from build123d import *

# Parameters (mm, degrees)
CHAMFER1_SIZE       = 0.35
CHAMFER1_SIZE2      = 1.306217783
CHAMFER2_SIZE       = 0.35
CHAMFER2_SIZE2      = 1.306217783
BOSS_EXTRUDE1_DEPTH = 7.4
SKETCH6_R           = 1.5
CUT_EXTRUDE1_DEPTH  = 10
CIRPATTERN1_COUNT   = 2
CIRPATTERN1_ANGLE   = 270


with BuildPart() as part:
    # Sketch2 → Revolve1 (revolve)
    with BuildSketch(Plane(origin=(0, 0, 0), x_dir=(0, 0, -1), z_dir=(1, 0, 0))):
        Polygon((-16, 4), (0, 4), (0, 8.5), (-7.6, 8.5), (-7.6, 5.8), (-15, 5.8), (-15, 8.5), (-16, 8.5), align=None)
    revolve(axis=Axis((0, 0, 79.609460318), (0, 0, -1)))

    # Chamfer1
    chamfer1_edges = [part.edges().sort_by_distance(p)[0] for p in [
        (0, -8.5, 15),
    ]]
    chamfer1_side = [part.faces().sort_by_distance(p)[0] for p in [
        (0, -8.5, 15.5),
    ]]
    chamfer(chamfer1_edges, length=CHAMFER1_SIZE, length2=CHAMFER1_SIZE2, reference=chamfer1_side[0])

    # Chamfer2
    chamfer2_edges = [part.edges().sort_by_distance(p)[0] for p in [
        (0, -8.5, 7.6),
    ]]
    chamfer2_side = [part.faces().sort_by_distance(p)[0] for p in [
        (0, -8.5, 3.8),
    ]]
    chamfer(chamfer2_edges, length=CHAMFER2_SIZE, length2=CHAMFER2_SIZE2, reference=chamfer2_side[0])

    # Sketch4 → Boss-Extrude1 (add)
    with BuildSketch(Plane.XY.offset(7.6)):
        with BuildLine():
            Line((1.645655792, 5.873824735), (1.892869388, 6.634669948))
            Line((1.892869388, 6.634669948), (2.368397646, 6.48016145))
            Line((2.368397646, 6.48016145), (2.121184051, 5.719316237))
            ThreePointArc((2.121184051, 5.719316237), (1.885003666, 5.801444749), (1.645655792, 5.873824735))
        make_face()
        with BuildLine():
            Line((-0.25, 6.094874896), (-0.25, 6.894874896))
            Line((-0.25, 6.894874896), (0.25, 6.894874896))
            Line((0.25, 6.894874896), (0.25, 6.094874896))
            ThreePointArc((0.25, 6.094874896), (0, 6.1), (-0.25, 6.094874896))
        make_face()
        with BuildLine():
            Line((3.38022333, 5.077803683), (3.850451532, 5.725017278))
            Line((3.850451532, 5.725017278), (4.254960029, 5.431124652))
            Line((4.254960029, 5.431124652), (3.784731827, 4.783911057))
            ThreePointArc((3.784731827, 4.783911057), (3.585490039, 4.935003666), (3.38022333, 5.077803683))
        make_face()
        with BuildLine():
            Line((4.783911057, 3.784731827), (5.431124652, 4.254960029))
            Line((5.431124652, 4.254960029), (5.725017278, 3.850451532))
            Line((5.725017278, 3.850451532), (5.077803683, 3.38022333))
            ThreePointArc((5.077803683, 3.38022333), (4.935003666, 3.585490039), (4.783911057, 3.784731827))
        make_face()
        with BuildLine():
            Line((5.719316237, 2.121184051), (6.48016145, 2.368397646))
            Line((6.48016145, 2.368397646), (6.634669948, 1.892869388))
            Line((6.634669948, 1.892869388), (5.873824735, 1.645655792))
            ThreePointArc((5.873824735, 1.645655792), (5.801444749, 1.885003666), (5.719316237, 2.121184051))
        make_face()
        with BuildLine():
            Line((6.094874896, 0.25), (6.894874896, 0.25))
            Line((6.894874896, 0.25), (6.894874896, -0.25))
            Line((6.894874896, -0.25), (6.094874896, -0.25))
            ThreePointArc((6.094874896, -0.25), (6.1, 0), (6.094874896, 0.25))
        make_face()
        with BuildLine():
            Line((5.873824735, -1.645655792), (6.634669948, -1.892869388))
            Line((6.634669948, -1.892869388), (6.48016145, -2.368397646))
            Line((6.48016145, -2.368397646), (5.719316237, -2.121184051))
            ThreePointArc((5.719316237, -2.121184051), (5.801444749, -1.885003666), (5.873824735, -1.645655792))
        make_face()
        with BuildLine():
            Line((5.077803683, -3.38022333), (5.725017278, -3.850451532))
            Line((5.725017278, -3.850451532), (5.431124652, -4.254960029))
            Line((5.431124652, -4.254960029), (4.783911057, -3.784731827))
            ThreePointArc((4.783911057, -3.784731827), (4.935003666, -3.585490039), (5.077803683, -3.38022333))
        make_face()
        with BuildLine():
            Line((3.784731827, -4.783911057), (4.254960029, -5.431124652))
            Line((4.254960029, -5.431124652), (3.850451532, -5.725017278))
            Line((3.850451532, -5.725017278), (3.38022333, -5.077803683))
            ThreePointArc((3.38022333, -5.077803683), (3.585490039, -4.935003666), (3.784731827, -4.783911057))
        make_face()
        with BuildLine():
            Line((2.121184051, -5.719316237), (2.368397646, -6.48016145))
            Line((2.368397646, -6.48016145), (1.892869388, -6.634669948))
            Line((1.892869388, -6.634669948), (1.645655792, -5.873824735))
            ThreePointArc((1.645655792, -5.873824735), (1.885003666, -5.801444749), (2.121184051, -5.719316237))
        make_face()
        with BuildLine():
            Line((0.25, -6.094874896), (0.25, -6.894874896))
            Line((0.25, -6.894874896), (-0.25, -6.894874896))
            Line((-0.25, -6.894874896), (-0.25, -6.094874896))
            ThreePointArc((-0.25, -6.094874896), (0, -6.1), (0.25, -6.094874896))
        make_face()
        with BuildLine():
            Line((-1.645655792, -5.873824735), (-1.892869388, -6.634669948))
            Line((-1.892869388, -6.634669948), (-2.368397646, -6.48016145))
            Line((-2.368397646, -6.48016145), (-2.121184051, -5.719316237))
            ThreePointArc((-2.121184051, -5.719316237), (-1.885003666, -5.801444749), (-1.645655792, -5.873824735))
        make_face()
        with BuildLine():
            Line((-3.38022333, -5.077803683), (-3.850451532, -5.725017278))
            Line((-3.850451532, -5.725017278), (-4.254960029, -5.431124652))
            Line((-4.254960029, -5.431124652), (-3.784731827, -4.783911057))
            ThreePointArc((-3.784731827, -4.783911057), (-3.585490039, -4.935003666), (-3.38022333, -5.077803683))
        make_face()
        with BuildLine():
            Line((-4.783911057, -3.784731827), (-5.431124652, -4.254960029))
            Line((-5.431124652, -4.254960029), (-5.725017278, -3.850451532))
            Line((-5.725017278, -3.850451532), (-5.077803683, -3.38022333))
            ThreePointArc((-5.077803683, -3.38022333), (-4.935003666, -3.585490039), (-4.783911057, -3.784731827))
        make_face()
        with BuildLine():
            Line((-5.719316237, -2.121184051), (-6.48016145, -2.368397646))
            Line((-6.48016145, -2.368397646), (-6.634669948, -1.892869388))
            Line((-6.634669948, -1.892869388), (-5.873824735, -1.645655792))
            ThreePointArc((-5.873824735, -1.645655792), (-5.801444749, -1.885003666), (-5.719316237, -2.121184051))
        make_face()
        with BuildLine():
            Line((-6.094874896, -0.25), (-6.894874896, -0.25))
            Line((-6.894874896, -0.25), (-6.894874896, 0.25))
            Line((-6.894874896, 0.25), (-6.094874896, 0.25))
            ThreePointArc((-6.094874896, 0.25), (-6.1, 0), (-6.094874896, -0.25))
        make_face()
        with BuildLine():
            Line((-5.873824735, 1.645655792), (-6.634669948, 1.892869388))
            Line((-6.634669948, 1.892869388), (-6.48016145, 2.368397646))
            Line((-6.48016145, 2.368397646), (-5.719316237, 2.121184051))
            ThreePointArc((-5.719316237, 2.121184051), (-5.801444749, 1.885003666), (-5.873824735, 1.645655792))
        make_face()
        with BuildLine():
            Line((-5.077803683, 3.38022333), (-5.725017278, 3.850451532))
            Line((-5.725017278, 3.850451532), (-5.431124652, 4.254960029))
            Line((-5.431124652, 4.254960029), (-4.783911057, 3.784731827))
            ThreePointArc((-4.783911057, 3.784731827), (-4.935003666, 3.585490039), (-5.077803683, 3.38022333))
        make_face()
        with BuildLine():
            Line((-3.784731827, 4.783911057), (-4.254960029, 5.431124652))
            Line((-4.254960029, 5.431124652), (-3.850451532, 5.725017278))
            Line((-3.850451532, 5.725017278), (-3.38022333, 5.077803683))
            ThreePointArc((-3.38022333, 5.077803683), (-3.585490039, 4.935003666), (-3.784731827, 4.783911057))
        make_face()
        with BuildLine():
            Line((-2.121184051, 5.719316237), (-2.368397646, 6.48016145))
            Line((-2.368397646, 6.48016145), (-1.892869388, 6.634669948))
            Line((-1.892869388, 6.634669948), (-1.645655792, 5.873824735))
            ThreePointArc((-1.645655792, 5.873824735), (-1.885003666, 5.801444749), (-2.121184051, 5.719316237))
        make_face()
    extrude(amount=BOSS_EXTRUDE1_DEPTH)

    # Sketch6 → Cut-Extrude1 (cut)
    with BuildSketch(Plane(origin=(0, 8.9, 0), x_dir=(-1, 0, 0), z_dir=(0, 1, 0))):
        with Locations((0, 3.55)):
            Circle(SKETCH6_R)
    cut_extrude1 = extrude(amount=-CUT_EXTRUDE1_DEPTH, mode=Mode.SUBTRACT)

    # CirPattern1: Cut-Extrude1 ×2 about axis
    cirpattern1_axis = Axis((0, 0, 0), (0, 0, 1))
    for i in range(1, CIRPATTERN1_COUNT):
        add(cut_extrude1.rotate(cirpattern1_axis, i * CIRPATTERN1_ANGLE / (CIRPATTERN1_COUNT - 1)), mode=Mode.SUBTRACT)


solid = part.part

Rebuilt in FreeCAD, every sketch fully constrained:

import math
import FreeCAD as App
import Part
import Sketcher

V = App.Vector
Q = App.Units.Quantity


def edges_at(feature, points):
    """Names of the edges that pass closest to the given points."""
    edges = feature.Shape.Edges
    near = lambda p: min(range(len(edges)), key=lambda i: edges[i].distToShape(Part.Vertex(*p))[0])
    return sorted({f"Edge{near(p) + 1}" for p in points})


def add_polygon(sketch, points):
    """Adds a closed chain of lines whose ends are joined by coincident constraints."""
    first, n = sketch.GeometryCount, len(points)
    for a, b in zip(points, points[1:] + points[:1]):
        sketch.addGeometry(Part.LineSegment(App.Vector(*a, 0), App.Vector(*b, 0)), False)
    for i in range(n):
        sketch.addConstraint(Sketcher.Constraint("Coincident", first + i, 2, first + (i + 1) % n, 1))

doc = App.newDocument("Part")
body = doc.addObject("PartDesign::Body", "Body")

# Sketch on YZ plane
sketch1 = doc.addObject("Sketcher::SketchObject", "Sketch")
body.addObject(sketch1)
sketch1.AttachmentSupport = (doc.YZ_Plane, [""])
sketch1.MapMode = "FlatFace"
add_polygon(sketch1, [(4, 16), (4, 0), (8.5, 0), (8.5, 7.6), (5.8, 7.6), (5.8, 15), (8.5, 15), (8.5, 16)])  # lines 0-7
sketch1.addConstraint(Sketcher.Constraint("Vertical", 0))
sketch1.addConstraint(Sketcher.Constraint("Horizontal", 1))
sketch1.addConstraint(Sketcher.Constraint("Vertical", 2))
sketch1.addConstraint(Sketcher.Constraint("Horizontal", 3))
sketch1.addConstraint(Sketcher.Constraint("Vertical", 4))
sketch1.addConstraint(Sketcher.Constraint("Horizontal", 5))
sketch1.addConstraint(Sketcher.Constraint("Vertical", 6))
sketch1.addConstraint(Sketcher.Constraint("Horizontal", 7))
sketch1.addConstraint(Sketcher.Constraint("PointOnObject", 0, 2, -1))
sketch1.addConstraint(Sketcher.Constraint("Vertical", 2, 2, 5, 2))
sketch1.addConstraint(Sketcher.Constraint("DistanceY", 0, 2, 0, 1, Q("16 mm")))
sketch1.addConstraint(Sketcher.Constraint("DistanceY", 6, 1, 6, 2, Q("1 mm")))
sketch1.addConstraint(Sketcher.Constraint("DistanceX", 1, 1, 1, 2, Q("4.5 mm")))
sketch1.addConstraint(Sketcher.Constraint("DistanceX", 3, 2, 3, 1, Q("2.7 mm")))
sketch1.addConstraint(Sketcher.Constraint("DistanceY", 2, 1, 2, 2, Q("7.6 mm")))
sketch1.addConstraint(Sketcher.Constraint("DistanceX", -1, 1, 0, 2, Q("4 mm")))
revolution = doc.addObject("PartDesign::Revolution", "Revolution")
body.addObject(revolution)
revolution.Profile = sketch1
revolution.ReferenceAxis = (sketch1, ["V_Axis"])
revolution.Angle = 360
doc.recompute()

chamfer = doc.addObject("PartDesign::Chamfer", "Chamfer")
body.addObject(chamfer)
chamfer.Base = (revolution, edges_at(revolution, [(0, -8.5, 15)]))
chamfer.ChamferType = "Two distances"
chamfer.Size = 0.35
chamfer.Size2 = 1.306218
chamfer.FlipDirection = True
doc.recompute()

chamfer2 = doc.addObject("PartDesign::Chamfer", "Chamfer001")
body.addObject(chamfer2)
chamfer2.Base = (chamfer, edges_at(chamfer, [(0, -8.5, 7.6)]))
chamfer2.ChamferType = "Two distances"
chamfer2.Size = 0.35
chamfer2.Size2 = 1.306218
chamfer2.FlipDirection = True

# Sketch on XY plane
sketch2 = doc.addObject("Sketcher::SketchObject", "Sketch001")
body.addObject(sketch2)
sketch2.AttachmentSupport = (doc.XY_Plane, [""])
sketch2.MapMode = "FlatFace"
sketch2.AttachmentOffset = App.Placement(V(0, 0, 7.6), App.Rotation())
sketch2.addGeometry(Part.LineSegment(V(1.892869, 6.63467, 0), V(1.645656, 5.873825, 0)), False)
sketch2.addGeometry(Part.ArcOfCircle(Part.Circle(V(0, 0, 0), V(0, 0, 1), 6.1), math.radians(69.651155), math.radians(74.348845)), False)
sketch2.addGeometry(Part.LineSegment(V(2.121184, 5.719316, 0), V(2.368398, 6.480161, 0)), False)
sketch2.addGeometry(Part.LineSegment(V(2.368398, 6.480161, 0), V(1.892869, 6.63467, 0)), False)
sketch2.addGeometry(Part.LineSegment(V(-0.25, 6.894875, 0), V(-0.25, 6.094875, 0)), False)
sketch2.addGeometry(Part.ArcOfCircle(Part.Circle(V(0, 0, 0), V(0, 0, 1), 6.1), math.radians(87.651154), math.radians(92.348846)), False)
sketch2.addGeometry(Part.LineSegment(V(0.25, 6.094875, 0), V(0.25, 6.894875, 0)), False)
sketch2.addGeometry(Part.LineSegment(V(0.25, 6.894875, 0), V(-0.25, 6.894875, 0)), False)
sketch2.addGeometry(Part.LineSegment(V(3.850452, 5.725017, 0), V(3.380223, 5.077804, 0)), False)
sketch2.addGeometry(Part.ArcOfCircle(Part.Circle(V(0, 0, 0), V(0, 0, 1), 6.1), math.radians(51.651154), math.radians(56.348846)), False)
sketch2.addGeometry(Part.LineSegment(V(3.784732, 4.783911, 0), V(4.25496, 5.431125, 0)), False)
sketch2.addGeometry(Part.LineSegment(V(4.25496, 5.431125, 0), V(3.850452, 5.725017, 0)), False)
sketch2.addGeometry(Part.LineSegment(V(5.431125, 4.25496, 0), V(4.783911, 3.784732, 0)), False)
sketch2.addGeometry(Part.ArcOfCircle(Part.Circle(V(0, 0, 0), V(0, 0, 1), 6.1), math.radians(33.651154), math.radians(38.348846)), False)
sketch2.addGeometry(Part.LineSegment(V(5.077804, 3.380223, 0), V(5.725017, 3.850452, 0)), False)
sketch2.addGeometry(Part.LineSegment(V(5.725017, 3.850452, 0), V(5.431125, 4.25496, 0)), False)
sketch2.addGeometry(Part.LineSegment(V(6.480161, 2.368398, 0), V(5.719316, 2.121184, 0)), False)
sketch2.addGeometry(Part.ArcOfCircle(Part.Circle(V(0, 0, 0), V(0, 0, 1), 6.1), math.radians(15.651155), math.radians(20.348845)), False)
sketch2.addGeometry(Part.LineSegment(V(5.873825, 1.645656, 0), V(6.63467, 1.892869, 0)), False)
sketch2.addGeometry(Part.LineSegment(V(6.63467, 1.892869, 0), V(6.480161, 2.368398, 0)), False)
sketch2.addGeometry(Part.LineSegment(V(6.894875, 0.25, 0), V(6.094875, 0.25, 0)), False)
sketch2.addGeometry(Part.ArcOfCircle(Part.Circle(V(0, 0, 0), V(0, 0, 1), 6.1), math.radians(-2.348846), math.radians(2.348846)), False)
sketch2.addGeometry(Part.LineSegment(V(6.094875, -0.25, 0), V(6.894875, -0.25, 0)), False)
sketch2.addGeometry(Part.LineSegment(V(6.894875, -0.25, 0), V(6.894875, 0.25, 0)), False)
sketch2.addGeometry(Part.LineSegment(V(6.63467, -1.892869, 0), V(5.873825, -1.645656, 0)), False)
sketch2.addGeometry(Part.ArcOfCircle(Part.Circle(V(0, 0, 0), V(0, 0, 1), 6.1), math.radians(-20.348845), math.radians(-15.651155)), False)
sketch2.addGeometry(Part.LineSegment(V(5.719316, -2.121184, 0), V(6.480161, -2.368398, 0)), False)
sketch2.addGeometry(Part.LineSegment(V(6.480161, -2.368398, 0), V(6.63467, -1.892869, 0)), False)
sketch2.addGeometry(Part.LineSegment(V(5.725017, -3.850452, 0), V(5.077804, -3.380223, 0)), False)
sketch2.addGeometry(Part.ArcOfCircle(Part.Circle(V(0, 0, 0), V(0, 0, 1), 6.1), math.radians(-38.348846), math.radians(-33.651154)), False)
sketch2.addGeometry(Part.LineSegment(V(4.783911, -3.784732, 0), V(5.431125, -4.25496, 0)), False)
sketch2.addGeometry(Part.LineSegment(V(5.431125, -4.25496, 0), V(5.725017, -3.850452, 0)), False)
sketch2.addGeometry(Part.LineSegment(V(4.25496, -5.431125, 0), V(3.784732, -4.783911, 0)), False)
sketch2.addGeometry(Part.ArcOfCircle(Part.Circle(V(0, 0, 0), V(0, 0, 1), 6.1), math.radians(-56.348846), math.radians(-51.651154)), False)
sketch2.addGeometry(Part.LineSegment(V(3.380223, -5.077804, 0), V(3.850452, -5.725017, 0)), False)
sketch2.addGeometry(Part.LineSegment(V(3.850452, -5.725017, 0), V(4.25496, -5.431125, 0)), False)
sketch2.addGeometry(Part.LineSegment(V(2.368398, -6.480161, 0), V(2.121184, -5.719316, 0)), False)
sketch2.addGeometry(Part.ArcOfCircle(Part.Circle(V(0, 0, 0), V(0, 0, 1), 6.1), math.radians(-74.348845), math.radians(-69.651155)), False)
sketch2.addGeometry(Part.LineSegment(V(1.645656, -5.873825, 0), V(1.892869, -6.63467, 0)), False)
sketch2.addGeometry(Part.LineSegment(V(1.892869, -6.63467, 0), V(2.368398, -6.480161, 0)), False)
sketch2.addGeometry(Part.LineSegment(V(0.25, -6.894875, 0), V(0.25, -6.094875, 0)), False)
sketch2.addGeometry(Part.ArcOfCircle(Part.Circle(V(0, 0, 0), V(0, 0, 1), 6.1), math.radians(-92.348846), math.radians(-87.651154)), False)
sketch2.addGeometry(Part.LineSegment(V(-0.25, -6.094875, 0), V(-0.25, -6.894875, 0)), False)
sketch2.addGeometry(Part.LineSegment(V(-0.25, -6.894875, 0), V(0.25, -6.894875, 0)), False)
sketch2.addGeometry(Part.LineSegment(V(-1.892869, -6.63467, 0), V(-1.645656, -5.873825, 0)), False)
sketch2.addGeometry(Part.ArcOfCircle(Part.Circle(V(0, 0, 0), V(0, 0, 1), 6.1), math.radians(-110.348845), math.radians(-105.651155)), False)
sketch2.addGeometry(Part.LineSegment(V(-2.121184, -5.719316, 0), V(-2.368398, -6.480161, 0)), False)
sketch2.addGeometry(Part.LineSegment(V(-2.368398, -6.480161, 0), V(-1.892869, -6.63467, 0)), False)
sketch2.addGeometry(Part.LineSegment(V(-3.850452, -5.725017, 0), V(-3.380223, -5.077804, 0)), False)
sketch2.addGeometry(Part.ArcOfCircle(Part.Circle(V(0, 0, 0), V(0, 0, 1), 6.1), math.radians(-128.348846), math.radians(-123.651154)), False)
sketch2.addGeometry(Part.LineSegment(V(-3.784732, -4.783911, 0), V(-4.25496, -5.431125, 0)), False)
sketch2.addGeometry(Part.LineSegment(V(-4.25496, -5.431125, 0), V(-3.850452, -5.725017, 0)), False)
sketch2.addGeometry(Part.LineSegment(V(-5.431125, -4.25496, 0), V(-4.783911, -3.784732, 0)), False)
sketch2.addGeometry(Part.ArcOfCircle(Part.Circle(V(0, 0, 0), V(0, 0, 1), 6.1), math.radians(-146.348846), math.radians(-141.651154)), False)
sketch2.addGeometry(Part.LineSegment(V(-5.077804, -3.380223, 0), V(-5.725017, -3.850452, 0)), False)
sketch2.addGeometry(Part.LineSegment(V(-5.725017, -3.850452, 0), V(-5.431125, -4.25496, 0)), False)
sketch2.addGeometry(Part.LineSegment(V(-6.480161, -2.368398, 0), V(-5.719316, -2.121184, 0)), False)
sketch2.addGeometry(Part.ArcOfCircle(Part.Circle(V(0, 0, 0), V(0, 0, 1), 6.1), math.radians(-164.348845), math.radians(-159.651155)), False)
sketch2.addGeometry(Part.LineSegment(V(-5.873825, -1.645656, 0), V(-6.63467, -1.892869, 0)), False)
sketch2.addGeometry(Part.LineSegment(V(-6.63467, -1.892869, 0), V(-6.480161, -2.368398, 0)), False)
sketch2.addGeometry(Part.LineSegment(V(-6.894875, -0.25, 0), V(-6.094875, -0.25, 0)), False)
sketch2.addGeometry(Part.ArcOfCircle(Part.Circle(V(0, 0, 0), V(0, 0, 1), 6.1), math.radians(177.651154), math.radians(182.348846)), False)
sketch2.addGeometry(Part.LineSegment(V(-6.094875, 0.25, 0), V(-6.894875, 0.25, 0)), False)
sketch2.addGeometry(Part.LineSegment(V(-6.894875, 0.25, 0), V(-6.894875, -0.25, 0)), False)
sketch2.addGeometry(Part.LineSegment(V(-6.63467, 1.892869, 0), V(-5.873825, 1.645656, 0)), False)
sketch2.addGeometry(Part.ArcOfCircle(Part.Circle(V(0, 0, 0), V(0, 0, 1), 6.1), math.radians(159.651155), math.radians(164.348845)), False)
sketch2.addGeometry(Part.LineSegment(V(-5.719316, 2.121184, 0), V(-6.480161, 2.368398, 0)), False)
sketch2.addGeometry(Part.LineSegment(V(-6.480161, 2.368398, 0), V(-6.63467, 1.892869, 0)), False)
sketch2.addGeometry(Part.LineSegment(V(-5.725017, 3.850452, 0), V(-5.077804, 3.380223, 0)), False)
sketch2.addGeometry(Part.ArcOfCircle(Part.Circle(V(0, 0, 0), V(0, 0, 1), 6.1), math.radians(141.651154), math.radians(146.348846)), False)
sketch2.addGeometry(Part.LineSegment(V(-4.783911, 3.784732, 0), V(-5.431125, 4.25496, 0)), False)
sketch2.addGeometry(Part.LineSegment(V(-5.431125, 4.25496, 0), V(-5.725017, 3.850452, 0)), False)
sketch2.addGeometry(Part.LineSegment(V(-4.25496, 5.431125, 0), V(-3.784732, 4.783911, 0)), False)
sketch2.addGeometry(Part.ArcOfCircle(Part.Circle(V(0, 0, 0), V(0, 0, 1), 6.1), math.radians(123.651154), math.radians(128.348846)), False)
sketch2.addGeometry(Part.LineSegment(V(-3.380223, 5.077804, 0), V(-3.850452, 5.725017, 0)), False)
sketch2.addGeometry(Part.LineSegment(V(-3.850452, 5.725017, 0), V(-4.25496, 5.431125, 0)), False)
sketch2.addGeometry(Part.LineSegment(V(-2.368398, 6.480161, 0), V(-2.121184, 5.719316, 0)), False)
sketch2.addGeometry(Part.ArcOfCircle(Part.Circle(V(0, 0, 0), V(0, 0, 1), 6.1), math.radians(105.651155), math.radians(110.348845)), False)
sketch2.addGeometry(Part.LineSegment(V(-1.645656, 5.873825, 0), V(-1.892869, 6.63467, 0)), False)
sketch2.addGeometry(Part.LineSegment(V(-1.892869, 6.63467, 0), V(-2.368398, 6.480161, 0)), False)
sketch2.addConstraint(Sketcher.Constraint("Coincident", 0, 2, 1, 2))
sketch2.addConstraint(Sketcher.Constraint("Coincident", 1, 1, 2, 1))
sketch2.addConstraint(Sketcher.Constraint("Coincident", 2, 2, 3, 1))
sketch2.addConstraint(Sketcher.Constraint("Coincident", 3, 2, 0, 1))
sketch2.addConstraint(Sketcher.Constraint("Coincident", 4, 2, 5, 2))
sketch2.addConstraint(Sketcher.Constraint("Coincident", 5, 1, 6, 1))
sketch2.addConstraint(Sketcher.Constraint("Coincident", 6, 2, 7, 1))
sketch2.addConstraint(Sketcher.Constraint("Coincident", 7, 2, 4, 1))
sketch2.addConstraint(Sketcher.Constraint("Coincident", 8, 2, 9, 2))
sketch2.addConstraint(Sketcher.Constraint("Coincident", 9, 1, 10, 1))
sketch2.addConstraint(Sketcher.Constraint("Coincident", 10, 2, 11, 1))
sketch2.addConstraint(Sketcher.Constraint("Coincident", 11, 2, 8, 1))
sketch2.addConstraint(Sketcher.Constraint("Coincident", 12, 2, 13, 2))
sketch2.addConstraint(Sketcher.Constraint("Coincident", 13, 1, 14, 1))
sketch2.addConstraint(Sketcher.Constraint("Coincident", 14, 2, 15, 1))
sketch2.addConstraint(Sketcher.Constraint("Coincident", 15, 2, 12, 1))
sketch2.addConstraint(Sketcher.Constraint("Coincident", 16, 2, 17, 2))
sketch2.addConstraint(Sketcher.Constraint("Coincident", 17, 1, 18, 1))
sketch2.addConstraint(Sketcher.Constraint("Coincident", 18, 2, 19, 1))
sketch2.addConstraint(Sketcher.Constraint("Coincident", 19, 2, 16, 1))
sketch2.addConstraint(Sketcher.Constraint("Coincident", 20, 2, 21, 2))
sketch2.addConstraint(Sketcher.Constraint("Coincident", 21, 1, 22, 1))
sketch2.addConstraint(Sketcher.Constraint("Coincident", 22, 2, 23, 1))
sketch2.addConstraint(Sketcher.Constraint("Coincident", 23, 2, 20, 1))
sketch2.addConstraint(Sketcher.Constraint("Coincident", 24, 2, 25, 2))
sketch2.addConstraint(Sketcher.Constraint("Coincident", 25, 1, 26, 1))
sketch2.addConstraint(Sketcher.Constraint("Coincident", 26, 2, 27, 1))
sketch2.addConstraint(Sketcher.Constraint("Coincident", 27, 2, 24, 1))
sketch2.addConstraint(Sketcher.Constraint("Coincident", 28, 2, 29, 2))
sketch2.addConstraint(Sketcher.Constraint("Coincident", 29, 1, 30, 1))
sketch2.addConstraint(Sketcher.Constraint("Coincident", 30, 2, 31, 1))
sketch2.addConstraint(Sketcher.Constraint("Coincident", 31, 2, 28, 1))
sketch2.addConstraint(Sketcher.Constraint("Coincident", 32, 2, 33, 2))
sketch2.addConstraint(Sketcher.Constraint("Coincident", 33, 1, 34, 1))
sketch2.addConstraint(Sketcher.Constraint("Coincident", 34, 2, 35, 1))
sketch2.addConstraint(Sketcher.Constraint("Coincident", 35, 2, 32, 1))
sketch2.addConstraint(Sketcher.Constraint("Coincident", 36, 2, 37, 2))
sketch2.addConstraint(Sketcher.Constraint("Coincident", 37, 1, 38, 1))
sketch2.addConstraint(Sketcher.Constraint("Coincident", 38, 2, 39, 1))
sketch2.addConstraint(Sketcher.Constraint("Coincident", 39, 2, 36, 1))
sketch2.addConstraint(Sketcher.Constraint("Coincident", 40, 2, 41, 2))
sketch2.addConstraint(Sketcher.Constraint("Coincident", 41, 1, 42, 1))
sketch2.addConstraint(Sketcher.Constraint("Coincident", 42, 2, 43, 1))
sketch2.addConstraint(Sketcher.Constraint("Coincident", 43, 2, 40, 1))
sketch2.addConstraint(Sketcher.Constraint("Coincident", 44, 2, 45, 2))
sketch2.addConstraint(Sketcher.Constraint("Coincident", 45, 1, 46, 1))
sketch2.addConstraint(Sketcher.Constraint("Coincident", 46, 2, 47, 1))
sketch2.addConstraint(Sketcher.Constraint("Coincident", 47, 2, 44, 1))
sketch2.addConstraint(Sketcher.Constraint("Coincident", 48, 2, 49, 2))
sketch2.addConstraint(Sketcher.Constraint("Coincident", 49, 1, 50, 1))
sketch2.addConstraint(Sketcher.Constraint("Coincident", 50, 2, 51, 1))
sketch2.addConstraint(Sketcher.Constraint("Coincident", 51, 2, 48, 1))
sketch2.addConstraint(Sketcher.Constraint("Coincident", 52, 2, 53, 2))
sketch2.addConstraint(Sketcher.Constraint("Coincident", 53, 1, 54, 1))
sketch2.addConstraint(Sketcher.Constraint("Coincident", 54, 2, 55, 1))
sketch2.addConstraint(Sketcher.Constraint("Coincident", 55, 2, 52, 1))
sketch2.addConstraint(Sketcher.Constraint("Coincident", 56, 2, 57, 2))
sketch2.addConstraint(Sketcher.Constraint("Coincident", 57, 1, 58, 1))
sketch2.addConstraint(Sketcher.Constraint("Coincident", 58, 2, 59, 1))
sketch2.addConstraint(Sketcher.Constraint("Coincident", 59, 2, 56, 1))
sketch2.addConstraint(Sketcher.Constraint("Coincident", 60, 2, 61, 2))
sketch2.addConstraint(Sketcher.Constraint("Coincident", 61, 1, 62, 1))
sketch2.addConstraint(Sketcher.Constraint("Coincident", 62, 2, 63, 1))
sketch2.addConstraint(Sketcher.Constraint("Coincident", 63, 2, 60, 1))
sketch2.addConstraint(Sketcher.Constraint("Coincident", 64, 2, 65, 2))
sketch2.addConstraint(Sketcher.Constraint("Coincident", 65, 1, 66, 1))
sketch2.addConstraint(Sketcher.Constraint("Coincident", 66, 2, 67, 1))
sketch2.addConstraint(Sketcher.Constraint("Coincident", 67, 2, 64, 1))
sketch2.addConstraint(Sketcher.Constraint("Coincident", 68, 2, 69, 2))
sketch2.addConstraint(Sketcher.Constraint("Coincident", 69, 1, 70, 1))
sketch2.addConstraint(Sketcher.Constraint("Coincident", 70, 2, 71, 1))
sketch2.addConstraint(Sketcher.Constraint("Coincident", 71, 2, 68, 1))
sketch2.addConstraint(Sketcher.Constraint("Coincident", 72, 2, 73, 2))
sketch2.addConstraint(Sketcher.Constraint("Coincident", 73, 1, 74, 1))
sketch2.addConstraint(Sketcher.Constraint("Coincident", 74, 2, 75, 1))
sketch2.addConstraint(Sketcher.Constraint("Coincident", 75, 2, 72, 1))
sketch2.addConstraint(Sketcher.Constraint("Coincident", 76, 2, 77, 2))
sketch2.addConstraint(Sketcher.Constraint("Coincident", 77, 1, 78, 1))
sketch2.addConstraint(Sketcher.Constraint("Coincident", 78, 2, 79, 1))
sketch2.addConstraint(Sketcher.Constraint("Coincident", 79, 2, 76, 1))
sketch2.addConstraint(Sketcher.Constraint("Vertical", 4))
sketch2.addConstraint(Sketcher.Constraint("Vertical", 6))
sketch2.addConstraint(Sketcher.Constraint("Horizontal", 7))
sketch2.addConstraint(Sketcher.Constraint("Horizontal", 20))
sketch2.addConstraint(Sketcher.Constraint("Horizontal", 22))
sketch2.addConstraint(Sketcher.Constraint("Vertical", 23))
sketch2.addConstraint(Sketcher.Constraint("Vertical", 40))
sketch2.addConstraint(Sketcher.Constraint("Vertical", 42))
sketch2.addConstraint(Sketcher.Constraint("Horizontal", 43))
sketch2.addConstraint(Sketcher.Constraint("Horizontal", 60))
sketch2.addConstraint(Sketcher.Constraint("Horizontal", 62))
sketch2.addConstraint(Sketcher.Constraint("Vertical", 63))
sketch2.addConstraint(Sketcher.Constraint("Coincident", 1, 3, -1, 1))
sketch2.addConstraint(Sketcher.Constraint("Coincident", 5, 3, -1, 1))
sketch2.addConstraint(Sketcher.Constraint("Coincident", 9, 3, -1, 1))
sketch2.addConstraint(Sketcher.Constraint("Coincident", 13, 3, -1, 1))
sketch2.addConstraint(Sketcher.Constraint("Coincident", 17, 3, -1, 1))
sketch2.addConstraint(Sketcher.Constraint("Coincident", 21, 3, -1, 1))
sketch2.addConstraint(Sketcher.Constraint("Coincident", 25, 3, -1, 1))
sketch2.addConstraint(Sketcher.Constraint("Coincident", 29, 3, -1, 1))
sketch2.addConstraint(Sketcher.Constraint("Coincident", 33, 3, -1, 1))
sketch2.addConstraint(Sketcher.Constraint("Coincident", 37, 3, -1, 1))
sketch2.addConstraint(Sketcher.Constraint("Coincident", 41, 3, -1, 1))
sketch2.addConstraint(Sketcher.Constraint("Coincident", 45, 3, -1, 1))
sketch2.addConstraint(Sketcher.Constraint("Coincident", 49, 3, -1, 1))
sketch2.addConstraint(Sketcher.Constraint("Coincident", 53, 3, -1, 1))
sketch2.addConstraint(Sketcher.Constraint("Coincident", 57, 3, -1, 1))
sketch2.addConstraint(Sketcher.Constraint("Coincident", 61, 3, -1, 1))
sketch2.addConstraint(Sketcher.Constraint("Coincident", 65, 3, -1, 1))
sketch2.addConstraint(Sketcher.Constraint("Coincident", 69, 3, -1, 1))
sketch2.addConstraint(Sketcher.Constraint("Coincident", 73, 3, -1, 1))
sketch2.addConstraint(Sketcher.Constraint("Coincident", 77, 3, -1, 1))
sketch2.addConstraint(Sketcher.Constraint("Equal", 1, 5))
sketch2.addConstraint(Sketcher.Constraint("Equal", 5, 9))
sketch2.addConstraint(Sketcher.Constraint("Equal", 9, 13))
sketch2.addConstraint(Sketcher.Constraint("Equal", 13, 17))
sketch2.addConstraint(Sketcher.Constraint("Equal", 17, 21))
sketch2.addConstraint(Sketcher.Constraint("Equal", 21, 25))
sketch2.addConstraint(Sketcher.Constraint("Equal", 25, 29))
sketch2.addConstraint(Sketcher.Constraint("Equal", 29, 33))
sketch2.addConstraint(Sketcher.Constraint("Equal", 33, 37))
sketch2.addConstraint(Sketcher.Constraint("Equal", 37, 41))
sketch2.addConstraint(Sketcher.Constraint("Equal", 41, 45))
sketch2.addConstraint(Sketcher.Constraint("Equal", 45, 49))
sketch2.addConstraint(Sketcher.Constraint("Equal", 49, 53))
sketch2.addConstraint(Sketcher.Constraint("Equal", 53, 57))
sketch2.addConstraint(Sketcher.Constraint("Equal", 57, 61))
sketch2.addConstraint(Sketcher.Constraint("Equal", 61, 65))
sketch2.addConstraint(Sketcher.Constraint("Equal", 65, 69))
sketch2.addConstraint(Sketcher.Constraint("Equal", 69, 73))
sketch2.addConstraint(Sketcher.Constraint("Equal", 73, 77))
sketch2.addConstraint(Sketcher.Constraint("Symmetric", 6, 2, 42, 2, -1, 1))
sketch2.addConstraint(Sketcher.Constraint("Symmetric", 2, 2, 46, 2, -1, 1))
sketch2.addConstraint(Sketcher.Constraint("Symmetric", 3, 2, 47, 2, -1, 1))
sketch2.addConstraint(Sketcher.Constraint("Symmetric", 10, 2, 50, 2, -1, 1))
sketch2.addConstraint(Sketcher.Constraint("Symmetric", 11, 2, 51, 2, -1, 1))
sketch2.addConstraint(Sketcher.Constraint("Symmetric", 14, 2, 54, 2, -1, 1))
sketch2.addConstraint(Sketcher.Constraint("Symmetric", 15, 2, 55, 2, -1, 1))
sketch2.addConstraint(Sketcher.Constraint("Symmetric", 18, 2, 58, 2, -1, 1))
sketch2.addConstraint(Sketcher.Constraint("Symmetric", 19, 2, 59, 2, -1, 1))
sketch2.addConstraint(Sketcher.Constraint("Symmetric", 22, 2, 62, 2, -1, 1))
sketch2.addConstraint(Sketcher.Constraint("Symmetric", 26, 2, 66, 2, -1, 1))
sketch2.addConstraint(Sketcher.Constraint("Symmetric", 27, 2, 67, 2, -1, 1))
sketch2.addConstraint(Sketcher.Constraint("Symmetric", 30, 2, 70, 2, -1, 1))
sketch2.addConstraint(Sketcher.Constraint("Symmetric", 31, 2, 71, 2, -1, 1))
sketch2.addConstraint(Sketcher.Constraint("Symmetric", 34, 2, 74, 2, -1, 1))
sketch2.addConstraint(Sketcher.Constraint("Symmetric", 35, 2, 75, 2, -1, 1))
sketch2.addConstraint(Sketcher.Constraint("Symmetric", 38, 2, 78, 2, -1, 1))
sketch2.addConstraint(Sketcher.Constraint("Symmetric", 39, 2, 79, 2, -1, 1))
sketch2.addConstraint(Sketcher.Constraint("Symmetric", 39, 2, 46, 2, -2))
sketch2.addConstraint(Sketcher.Constraint("Symmetric", 38, 2, 47, 2, -2))
sketch2.addConstraint(Sketcher.Constraint("Symmetric", 35, 2, 50, 2, -2))
sketch2.addConstraint(Sketcher.Constraint("Symmetric", 34, 2, 51, 2, -2))
sketch2.addConstraint(Sketcher.Constraint("Symmetric", 31, 2, 54, 2, -2))
sketch2.addConstraint(Sketcher.Constraint("Symmetric", 30, 2, 55, 2, -2))
sketch2.addConstraint(Sketcher.Constraint("Symmetric", 27, 2, 58, 2, -2))
sketch2.addConstraint(Sketcher.Constraint("Symmetric", 26, 2, 59, 2, -2))
sketch2.addConstraint(Sketcher.Constraint("Parallel", 0, 2))
sketch2.addConstraint(Sketcher.Constraint("Perpendicular", 2, 3))
sketch2.addConstraint(Sketcher.Constraint("Parallel", 8, 10))
sketch2.addConstraint(Sketcher.Constraint("Perpendicular", 10, 11))
sketch2.addConstraint(Sketcher.Constraint("Parallel", 12, 14))
sketch2.addConstraint(Sketcher.Constraint("Perpendicular", 14, 15))
sketch2.addConstraint(Sketcher.Constraint("Parallel", 16, 18))
sketch2.addConstraint(Sketcher.Constraint("Perpendicular", 18, 19))
sketch2.addConstraint(Sketcher.Constraint("Parallel", 3, 24))
sketch2.addConstraint(Sketcher.Constraint("Parallel", 24, 26))
sketch2.addConstraint(Sketcher.Constraint("Perpendicular", 26, 27))
sketch2.addConstraint(Sketcher.Constraint("Parallel", 11, 28))
sketch2.addConstraint(Sketcher.Constraint("Parallel", 28, 30))
sketch2.addConstraint(Sketcher.Constraint("Perpendicular", 30, 31))
sketch2.addConstraint(Sketcher.Constraint("Parallel", 15, 32))
sketch2.addConstraint(Sketcher.Constraint("Parallel", 32, 34))
sketch2.addConstraint(Sketcher.Constraint("Parallel", 19, 36))
sketch2.addConstraint(Sketcher.Constraint("Parallel", 36, 38))
sketch2.addConstraint(Sketcher.Constraint("Parallel", 27, 44))
sketch2.addConstraint(Sketcher.Constraint("Parallel", 44, 46))
sketch2.addConstraint(Sketcher.Constraint("Parallel", 31, 48))
sketch2.addConstraint(Sketcher.Constraint("Parallel", 48, 50))
sketch2.addConstraint(Sketcher.Constraint("Parallel", 35, 52))
sketch2.addConstraint(Sketcher.Constraint("Parallel", 52, 54))
sketch2.addConstraint(Sketcher.Constraint("Parallel", 39, 56))
sketch2.addConstraint(Sketcher.Constraint("Parallel", 56, 58))
sketch2.addConstraint(Sketcher.Constraint("Parallel", 47, 64))
sketch2.addConstraint(Sketcher.Constraint("Parallel", 64, 66))
sketch2.addConstraint(Sketcher.Constraint("Parallel", 51, 68))
sketch2.addConstraint(Sketcher.Constraint("Parallel", 68, 70))
sketch2.addConstraint(Sketcher.Constraint("Parallel", 55, 72))
sketch2.addConstraint(Sketcher.Constraint("Parallel", 72, 74))
sketch2.addConstraint(Sketcher.Constraint("Parallel", 59, 76))
sketch2.addConstraint(Sketcher.Constraint("Parallel", 76, 78))
sketch2.addConstraint(Sketcher.Constraint("Horizontal", 4, 2, 5, 1))
sketch2.addConstraint(Sketcher.Constraint("Horizontal", 40, 2, 41, 1))
sketch2.addConstraint(Sketcher.Constraint("Horizontal", 22, 2, 60, 2))
sketch2.addConstraint(Sketcher.Constraint("Horizontal", 23, 2, 61, 1))
sketch2.addConstraint(Sketcher.Constraint("Equal", 62, 4))
sketch2.addConstraint(Sketcher.Constraint("Equal", 43, 23))
sketch2.addConstraint(Sketcher.Constraint("Equal", 0, 2))
sketch2.addConstraint(Sketcher.Constraint("Equal", 2, 8))
sketch2.addConstraint(Sketcher.Constraint("Equal", 8, 10))
sketch2.addConstraint(Sketcher.Constraint("Equal", 3, 11))
sketch2.addConstraint(Sketcher.Constraint("Equal", 10, 12))
sketch2.addConstraint(Sketcher.Constraint("Equal", 12, 14))
sketch2.addConstraint(Sketcher.Constraint("Equal", 11, 15))
sketch2.addConstraint(Sketcher.Constraint("Equal", 14, 16))
sketch2.addConstraint(Sketcher.Constraint("Equal", 16, 18))
sketch2.addConstraint(Sketcher.Constraint("Equal", 15, 19))
sketch2.addConstraint(Sketcher.Constraint("Radius", 1, Q("6.1 mm")))
sketch2.addConstraint(Sketcher.Constraint("Angle", 0, Q("-108 deg")))
sketch2.addConstraint(Sketcher.Constraint("Angle", 8, Q("-126 deg")))
sketch2.addConstraint(Sketcher.Constraint("DistanceX", 7, 2, 7, 1, Q("0.5 mm")))
sketch2.addConstraint(Sketcher.Constraint("DistanceX", 20, 2, 20, 1, Q("0.8 mm")))
sketch2.addConstraint(Sketcher.Constraint("Distance", 0, Q("0.8 mm")))
sketch2.addConstraint(Sketcher.Constraint("Distance", 3, Q("0.5 mm")))
pad1 = doc.addObject("PartDesign::Pad", "Pad")
body.addObject(pad1)
pad1.Profile = sketch2
pad1.Length = 7.4

# Sketch on XZ plane
sketch3 = doc.addObject("Sketcher::SketchObject", "Sketch002")
body.addObject(sketch3)
sketch3.AttachmentSupport = (doc.XZ_Plane, [""])
sketch3.MapMode = "FlatFace"
sketch3.AttachmentOffset = App.Placement(V(0, 0, -8.9), App.Rotation())
sketch3.addGeometry(Part.Circle(V(0, 3.55, 0), V(0, 0, 1), 1.5), False)
sketch3.addConstraint(Sketcher.Constraint("PointOnObject", 0, 3, -2))
sketch3.addConstraint(Sketcher.Constraint("Diameter", 0, Q("3 mm")))
sketch3.addConstraint(Sketcher.Constraint("DistanceY", -1, 1, 0, 3, Q("3.55 mm")))
pocket1 = doc.addObject("PartDesign::Pocket", "Pocket")
body.addObject(pocket1)
pocket1.Profile = sketch3
pocket1.Length = 10
pocket1.Reversed = True
doc.recompute()

polarpattern = doc.addObject("PartDesign::PolarPattern", "PolarPattern")
body.addObject(polarpattern)
polarpattern.Originals = [pocket1]
polarpattern.Axis = (doc.Z_Axis, [""])
polarpattern.Angle = 270
polarpattern.Occurrences = 2
body.Tip = polarpattern

doc.recompute()
